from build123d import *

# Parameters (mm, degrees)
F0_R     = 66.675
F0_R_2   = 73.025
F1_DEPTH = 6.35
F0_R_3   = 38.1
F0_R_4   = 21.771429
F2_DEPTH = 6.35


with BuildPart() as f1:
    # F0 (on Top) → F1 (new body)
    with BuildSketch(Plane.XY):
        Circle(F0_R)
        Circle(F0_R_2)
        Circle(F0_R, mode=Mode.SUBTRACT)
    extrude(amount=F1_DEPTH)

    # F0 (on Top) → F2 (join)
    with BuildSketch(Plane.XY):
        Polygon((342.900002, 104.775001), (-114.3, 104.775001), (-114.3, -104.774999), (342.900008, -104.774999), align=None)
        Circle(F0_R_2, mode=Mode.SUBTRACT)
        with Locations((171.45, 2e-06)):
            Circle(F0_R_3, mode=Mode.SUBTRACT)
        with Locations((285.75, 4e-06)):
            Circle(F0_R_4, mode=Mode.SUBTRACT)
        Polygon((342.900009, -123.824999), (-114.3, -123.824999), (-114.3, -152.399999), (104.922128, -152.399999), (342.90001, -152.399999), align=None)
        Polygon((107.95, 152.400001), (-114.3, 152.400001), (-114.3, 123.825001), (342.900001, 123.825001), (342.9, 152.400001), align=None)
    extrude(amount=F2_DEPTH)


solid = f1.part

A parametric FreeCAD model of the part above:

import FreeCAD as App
import Part
import Sketcher
from FreeCAD import Vector
Q = App.Units.Quantity

doc = App.newDocument("Part")
body = doc.addObject("PartDesign::Body", "Body")
body.AllowCompound = True

# Sketch on XY plane
sketch1 = body.newObject("Sketcher::SketchObject", "Sketch")
sketch1.AttachmentSupport = (doc.getObject("XY_Plane"), [""])
sketch1.MapMode = "FlatFace"
sketch1.addGeometry([
    Part.Circle(Vector(0, 0, 0), Vector(0, 0, 1), 73),
    Part.Circle(Vector(0, 0, 0), Vector(0, 0, 1), 67),
], False)
sketch1.addConstraint([
    Sketcher.Constraint("Coincident", 0, 3, -1, 1),
    Sketcher.Constraint("Coincident", 1, 3, -1, 1),
    Sketcher.Constraint("Diameter", 0, Q("5.75 in")),
    Sketcher.Constraint("Diameter", 1, Q("5.25 in")),
])
pad1 = body.newObject("PartDesign::Pad", "Pad")
pad1.Profile = sketch1
pad1.Length = Q("0.25 in")

# Sketch on XY plane
sketch2 = body.newObject("Sketcher::SketchObject", "Sketch001")
sketch2.AttachmentSupport = (doc.getObject("XY_Plane"), [""])
sketch2.MapMode = "FlatFace"
sketch2.addGeometry([
    Part.LineSegment(Vector(343, 105, 0), Vector(-114, 105, 0)),  # 0
    Part.LineSegment(Vector(-114, 105, 0), Vector(-114, -105, 0)),  # 1
    Part.LineSegment(Vector(-114, -105, 0), Vector(343, -105, 0)),  # 2
    Part.LineSegment(Vector(343, -105, 0), Vector(343, 105, 0)),  # 3
    Part.Circle(Vector(0, 0, 0), Vector(0, 0, 1), 73),  # 4
    Part.Circle(Vector(171, 0, 0), Vector(0, 0, 1), 38),  # 5
    Part.Circle(Vector(286, 0, 0), Vector(0, 0, 1), 22),  # 6
    Part.LineSegment(Vector(343, -124, 0), Vector(-114, -124, 0)),  # 7
    Part.LineSegment(Vector(-114, -124, 0), Vector(-114, -152, 0)),  # 8
    Part.LineSegment(Vector(-114, -152, 0), Vector(343, -152, 0)),  # 9
    Part.LineSegment(Vector(343, -152, 0), Vector(343, -124, 0)),  # 10
    Part.LineSegment(Vector(-114, 152, 0), Vector(-114, 124, 0)),  # 11
    Part.LineSegment(Vector(-114, 124, 0), Vector(343, 124, 0)),  # 12
    Part.LineSegment(Vector(343, 124, 0), Vector(343, 152, 0)),  # 13
    Part.LineSegment(Vector(343, 152, 0), Vector(-114, 152, 0)),  # 14
], False)
sketch2.addConstraint([
    Sketcher.Constraint("Coincident", 0, 2, 1, 1),
    Sketcher.Constraint("Coincident", 1, 2, 2, 1),
    Sketcher.Constraint("Coincident", 2, 2, 3, 1),
    Sketcher.Constraint("Coincident", 3, 2, 0, 1),
    Sketcher.Constraint("Coincident", 7, 2, 8, 1),
    Sketcher.Constraint("Coincident", 8, 2, 9, 1),
    Sketcher.Constraint("Coincident", 9, 2, 10, 1),
    Sketcher.Constraint("Coincident", 10, 2, 7, 1),
    Sketcher.Constraint("Coincident", 11, 2, 12, 1),
    Sketcher.Constraint("Coincident", 12, 2, 13, 1),
    Sketcher.Constraint("Coincident", 13, 2, 14, 1),
    Sketcher.Constraint("Coincident", 14, 2, 11, 1),
    Sketcher.Constraint("Horizontal", 0),
    Sketcher.Constraint("Vertical", 1),
    Sketcher.Constraint("Horizontal", 2),
    Sketcher.Constraint("Horizontal", 7),
    Sketcher.Constraint("Vertical", 8),
    Sketcher.Constraint("Horizontal", 9),
    Sketcher.Constraint("Vertical", 10),
    Sketcher.Constraint("Vertical", 11),
    Sketcher.Constraint("Horizontal", 12),
    Sketcher.Constraint("Vertical", 13),
    Sketcher.Constraint("Horizontal", 14),
    Sketcher.Constraint("Coincident", 4, 3, -1, 1),
    Sketcher.Constraint("Symmetric", 2, 2, 3, 2, -1),
    Sketcher.Constraint("Symmetric", 7, 2, 11, 2, -1),
    Sketcher.Constraint("Vertical", 1, 2, 7, 2),
    Sketcher.Constraint("Vertical", 2, 2, 9, 2),
    Sketcher.Constraint("Vertical", 3, 2, 12, 2),
    Sketcher.Constraint("Equal", 10, 11),
    Sketcher.Constraint("Diameter", 5, Q("3 in")),
    Sketcher.Constraint("Diameter", 4, Q("5.75 in")),
    Sketcher.Constraint("DistanceX", 0, 2, 0, 1, Q("18.0000001 in")),
    Sketcher.Constraint("DistanceY", 8, 2, -1, 1, Q("6 in")),
    Sketcher.Constraint("DistanceY", 7, 2, 0, 2, Q("9 in")),
    Sketcher.Constraint("DistanceY", 8, 2, 5, 3, Q("6 in")),
    Sketcher.Constraint("DistanceY", 9, 2, 6, 3, Q("6.0000001 in")),
    Sketcher.Constraint("DistanceY", 1, 2, 1, 1, Q("8.25 in")),
    Sketcher.Constraint("DistanceX", 0, 2, -1, 1, Q("4.5 in")),
    Sketcher.Constraint("DistanceX", 5, 3, 6, 3, Q("4.5 in")),
    Sketcher.Constraint("DistanceX", -1, 1, 5, 3, Q("6.75 in")),
    Sketcher.Constraint("Diameter", 6, Q("43.542858 mm")),
])
pad2 = body.newObject("PartDesign::Pad", "Pad001")
pad2.Profile = sketch2
pad2.Length = Q("0.25 in")

doc.recompute()
